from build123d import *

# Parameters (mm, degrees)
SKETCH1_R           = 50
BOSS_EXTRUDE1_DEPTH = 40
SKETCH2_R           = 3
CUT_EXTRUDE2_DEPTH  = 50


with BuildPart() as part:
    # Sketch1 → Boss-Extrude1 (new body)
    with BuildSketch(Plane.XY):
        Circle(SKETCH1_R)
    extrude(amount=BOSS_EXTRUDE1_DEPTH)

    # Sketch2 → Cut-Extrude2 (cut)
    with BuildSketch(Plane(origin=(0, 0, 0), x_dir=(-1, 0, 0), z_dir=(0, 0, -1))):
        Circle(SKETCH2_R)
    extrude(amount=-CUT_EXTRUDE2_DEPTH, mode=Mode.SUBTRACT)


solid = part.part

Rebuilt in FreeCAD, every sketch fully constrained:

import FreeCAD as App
import Part
import Sketcher
from FreeCAD import Vector
Q = App.Units.Quantity

doc = App.newDocument("Part")
body = doc.addObject("PartDesign::Body", "Body")

sketch1 = body.newObject("Sketcher::SketchObject", "Sketch")
sketch1.AttachmentSupport = (doc.getObject("XY_Plane"), [""])
sketch1.MapMode = "FlatFace"
sketch1.addGeometry(Part.Circle(Vector(0, 0, 0), Vector(0, 0, 1), 50), False)
sketch1.addConstraint(Sketcher.Constraint("Coincident", 0, 3, -1, 1))
sketch1.addConstraint(Sketcher.Constraint("Diameter", 0, Q("100 mm")))
pad1 = body.newObject("PartDesign::Pad", "Pad")
pad1.Profile = sketch1
pad1.Length = 40

sketch2 = body.newObject("Sketcher::SketchObject", "Sketch001")
sketch2.AttachmentSupport = (doc.getObject("XY_Plane"), [""])
sketch2.MapMode = "FlatFace"
sketch2.addGeometry(Part.Circle(Vector(0, 0, 0), Vector(0, 0, 1), 3), False)
sketch2.addConstraint(Sketcher.Constraint("Coincident", 0, 3, -1, 1))
sketch2.addConstraint(Sketcher.Constraint("Diameter", 0, Q("6 mm")))
pocket1 = body.newObject("PartDesign::Pocket", "Pocket")
pocket1.Profile = sketch2
pocket1.Length = 50
pocket1.Reversed = True

doc.recompute()
